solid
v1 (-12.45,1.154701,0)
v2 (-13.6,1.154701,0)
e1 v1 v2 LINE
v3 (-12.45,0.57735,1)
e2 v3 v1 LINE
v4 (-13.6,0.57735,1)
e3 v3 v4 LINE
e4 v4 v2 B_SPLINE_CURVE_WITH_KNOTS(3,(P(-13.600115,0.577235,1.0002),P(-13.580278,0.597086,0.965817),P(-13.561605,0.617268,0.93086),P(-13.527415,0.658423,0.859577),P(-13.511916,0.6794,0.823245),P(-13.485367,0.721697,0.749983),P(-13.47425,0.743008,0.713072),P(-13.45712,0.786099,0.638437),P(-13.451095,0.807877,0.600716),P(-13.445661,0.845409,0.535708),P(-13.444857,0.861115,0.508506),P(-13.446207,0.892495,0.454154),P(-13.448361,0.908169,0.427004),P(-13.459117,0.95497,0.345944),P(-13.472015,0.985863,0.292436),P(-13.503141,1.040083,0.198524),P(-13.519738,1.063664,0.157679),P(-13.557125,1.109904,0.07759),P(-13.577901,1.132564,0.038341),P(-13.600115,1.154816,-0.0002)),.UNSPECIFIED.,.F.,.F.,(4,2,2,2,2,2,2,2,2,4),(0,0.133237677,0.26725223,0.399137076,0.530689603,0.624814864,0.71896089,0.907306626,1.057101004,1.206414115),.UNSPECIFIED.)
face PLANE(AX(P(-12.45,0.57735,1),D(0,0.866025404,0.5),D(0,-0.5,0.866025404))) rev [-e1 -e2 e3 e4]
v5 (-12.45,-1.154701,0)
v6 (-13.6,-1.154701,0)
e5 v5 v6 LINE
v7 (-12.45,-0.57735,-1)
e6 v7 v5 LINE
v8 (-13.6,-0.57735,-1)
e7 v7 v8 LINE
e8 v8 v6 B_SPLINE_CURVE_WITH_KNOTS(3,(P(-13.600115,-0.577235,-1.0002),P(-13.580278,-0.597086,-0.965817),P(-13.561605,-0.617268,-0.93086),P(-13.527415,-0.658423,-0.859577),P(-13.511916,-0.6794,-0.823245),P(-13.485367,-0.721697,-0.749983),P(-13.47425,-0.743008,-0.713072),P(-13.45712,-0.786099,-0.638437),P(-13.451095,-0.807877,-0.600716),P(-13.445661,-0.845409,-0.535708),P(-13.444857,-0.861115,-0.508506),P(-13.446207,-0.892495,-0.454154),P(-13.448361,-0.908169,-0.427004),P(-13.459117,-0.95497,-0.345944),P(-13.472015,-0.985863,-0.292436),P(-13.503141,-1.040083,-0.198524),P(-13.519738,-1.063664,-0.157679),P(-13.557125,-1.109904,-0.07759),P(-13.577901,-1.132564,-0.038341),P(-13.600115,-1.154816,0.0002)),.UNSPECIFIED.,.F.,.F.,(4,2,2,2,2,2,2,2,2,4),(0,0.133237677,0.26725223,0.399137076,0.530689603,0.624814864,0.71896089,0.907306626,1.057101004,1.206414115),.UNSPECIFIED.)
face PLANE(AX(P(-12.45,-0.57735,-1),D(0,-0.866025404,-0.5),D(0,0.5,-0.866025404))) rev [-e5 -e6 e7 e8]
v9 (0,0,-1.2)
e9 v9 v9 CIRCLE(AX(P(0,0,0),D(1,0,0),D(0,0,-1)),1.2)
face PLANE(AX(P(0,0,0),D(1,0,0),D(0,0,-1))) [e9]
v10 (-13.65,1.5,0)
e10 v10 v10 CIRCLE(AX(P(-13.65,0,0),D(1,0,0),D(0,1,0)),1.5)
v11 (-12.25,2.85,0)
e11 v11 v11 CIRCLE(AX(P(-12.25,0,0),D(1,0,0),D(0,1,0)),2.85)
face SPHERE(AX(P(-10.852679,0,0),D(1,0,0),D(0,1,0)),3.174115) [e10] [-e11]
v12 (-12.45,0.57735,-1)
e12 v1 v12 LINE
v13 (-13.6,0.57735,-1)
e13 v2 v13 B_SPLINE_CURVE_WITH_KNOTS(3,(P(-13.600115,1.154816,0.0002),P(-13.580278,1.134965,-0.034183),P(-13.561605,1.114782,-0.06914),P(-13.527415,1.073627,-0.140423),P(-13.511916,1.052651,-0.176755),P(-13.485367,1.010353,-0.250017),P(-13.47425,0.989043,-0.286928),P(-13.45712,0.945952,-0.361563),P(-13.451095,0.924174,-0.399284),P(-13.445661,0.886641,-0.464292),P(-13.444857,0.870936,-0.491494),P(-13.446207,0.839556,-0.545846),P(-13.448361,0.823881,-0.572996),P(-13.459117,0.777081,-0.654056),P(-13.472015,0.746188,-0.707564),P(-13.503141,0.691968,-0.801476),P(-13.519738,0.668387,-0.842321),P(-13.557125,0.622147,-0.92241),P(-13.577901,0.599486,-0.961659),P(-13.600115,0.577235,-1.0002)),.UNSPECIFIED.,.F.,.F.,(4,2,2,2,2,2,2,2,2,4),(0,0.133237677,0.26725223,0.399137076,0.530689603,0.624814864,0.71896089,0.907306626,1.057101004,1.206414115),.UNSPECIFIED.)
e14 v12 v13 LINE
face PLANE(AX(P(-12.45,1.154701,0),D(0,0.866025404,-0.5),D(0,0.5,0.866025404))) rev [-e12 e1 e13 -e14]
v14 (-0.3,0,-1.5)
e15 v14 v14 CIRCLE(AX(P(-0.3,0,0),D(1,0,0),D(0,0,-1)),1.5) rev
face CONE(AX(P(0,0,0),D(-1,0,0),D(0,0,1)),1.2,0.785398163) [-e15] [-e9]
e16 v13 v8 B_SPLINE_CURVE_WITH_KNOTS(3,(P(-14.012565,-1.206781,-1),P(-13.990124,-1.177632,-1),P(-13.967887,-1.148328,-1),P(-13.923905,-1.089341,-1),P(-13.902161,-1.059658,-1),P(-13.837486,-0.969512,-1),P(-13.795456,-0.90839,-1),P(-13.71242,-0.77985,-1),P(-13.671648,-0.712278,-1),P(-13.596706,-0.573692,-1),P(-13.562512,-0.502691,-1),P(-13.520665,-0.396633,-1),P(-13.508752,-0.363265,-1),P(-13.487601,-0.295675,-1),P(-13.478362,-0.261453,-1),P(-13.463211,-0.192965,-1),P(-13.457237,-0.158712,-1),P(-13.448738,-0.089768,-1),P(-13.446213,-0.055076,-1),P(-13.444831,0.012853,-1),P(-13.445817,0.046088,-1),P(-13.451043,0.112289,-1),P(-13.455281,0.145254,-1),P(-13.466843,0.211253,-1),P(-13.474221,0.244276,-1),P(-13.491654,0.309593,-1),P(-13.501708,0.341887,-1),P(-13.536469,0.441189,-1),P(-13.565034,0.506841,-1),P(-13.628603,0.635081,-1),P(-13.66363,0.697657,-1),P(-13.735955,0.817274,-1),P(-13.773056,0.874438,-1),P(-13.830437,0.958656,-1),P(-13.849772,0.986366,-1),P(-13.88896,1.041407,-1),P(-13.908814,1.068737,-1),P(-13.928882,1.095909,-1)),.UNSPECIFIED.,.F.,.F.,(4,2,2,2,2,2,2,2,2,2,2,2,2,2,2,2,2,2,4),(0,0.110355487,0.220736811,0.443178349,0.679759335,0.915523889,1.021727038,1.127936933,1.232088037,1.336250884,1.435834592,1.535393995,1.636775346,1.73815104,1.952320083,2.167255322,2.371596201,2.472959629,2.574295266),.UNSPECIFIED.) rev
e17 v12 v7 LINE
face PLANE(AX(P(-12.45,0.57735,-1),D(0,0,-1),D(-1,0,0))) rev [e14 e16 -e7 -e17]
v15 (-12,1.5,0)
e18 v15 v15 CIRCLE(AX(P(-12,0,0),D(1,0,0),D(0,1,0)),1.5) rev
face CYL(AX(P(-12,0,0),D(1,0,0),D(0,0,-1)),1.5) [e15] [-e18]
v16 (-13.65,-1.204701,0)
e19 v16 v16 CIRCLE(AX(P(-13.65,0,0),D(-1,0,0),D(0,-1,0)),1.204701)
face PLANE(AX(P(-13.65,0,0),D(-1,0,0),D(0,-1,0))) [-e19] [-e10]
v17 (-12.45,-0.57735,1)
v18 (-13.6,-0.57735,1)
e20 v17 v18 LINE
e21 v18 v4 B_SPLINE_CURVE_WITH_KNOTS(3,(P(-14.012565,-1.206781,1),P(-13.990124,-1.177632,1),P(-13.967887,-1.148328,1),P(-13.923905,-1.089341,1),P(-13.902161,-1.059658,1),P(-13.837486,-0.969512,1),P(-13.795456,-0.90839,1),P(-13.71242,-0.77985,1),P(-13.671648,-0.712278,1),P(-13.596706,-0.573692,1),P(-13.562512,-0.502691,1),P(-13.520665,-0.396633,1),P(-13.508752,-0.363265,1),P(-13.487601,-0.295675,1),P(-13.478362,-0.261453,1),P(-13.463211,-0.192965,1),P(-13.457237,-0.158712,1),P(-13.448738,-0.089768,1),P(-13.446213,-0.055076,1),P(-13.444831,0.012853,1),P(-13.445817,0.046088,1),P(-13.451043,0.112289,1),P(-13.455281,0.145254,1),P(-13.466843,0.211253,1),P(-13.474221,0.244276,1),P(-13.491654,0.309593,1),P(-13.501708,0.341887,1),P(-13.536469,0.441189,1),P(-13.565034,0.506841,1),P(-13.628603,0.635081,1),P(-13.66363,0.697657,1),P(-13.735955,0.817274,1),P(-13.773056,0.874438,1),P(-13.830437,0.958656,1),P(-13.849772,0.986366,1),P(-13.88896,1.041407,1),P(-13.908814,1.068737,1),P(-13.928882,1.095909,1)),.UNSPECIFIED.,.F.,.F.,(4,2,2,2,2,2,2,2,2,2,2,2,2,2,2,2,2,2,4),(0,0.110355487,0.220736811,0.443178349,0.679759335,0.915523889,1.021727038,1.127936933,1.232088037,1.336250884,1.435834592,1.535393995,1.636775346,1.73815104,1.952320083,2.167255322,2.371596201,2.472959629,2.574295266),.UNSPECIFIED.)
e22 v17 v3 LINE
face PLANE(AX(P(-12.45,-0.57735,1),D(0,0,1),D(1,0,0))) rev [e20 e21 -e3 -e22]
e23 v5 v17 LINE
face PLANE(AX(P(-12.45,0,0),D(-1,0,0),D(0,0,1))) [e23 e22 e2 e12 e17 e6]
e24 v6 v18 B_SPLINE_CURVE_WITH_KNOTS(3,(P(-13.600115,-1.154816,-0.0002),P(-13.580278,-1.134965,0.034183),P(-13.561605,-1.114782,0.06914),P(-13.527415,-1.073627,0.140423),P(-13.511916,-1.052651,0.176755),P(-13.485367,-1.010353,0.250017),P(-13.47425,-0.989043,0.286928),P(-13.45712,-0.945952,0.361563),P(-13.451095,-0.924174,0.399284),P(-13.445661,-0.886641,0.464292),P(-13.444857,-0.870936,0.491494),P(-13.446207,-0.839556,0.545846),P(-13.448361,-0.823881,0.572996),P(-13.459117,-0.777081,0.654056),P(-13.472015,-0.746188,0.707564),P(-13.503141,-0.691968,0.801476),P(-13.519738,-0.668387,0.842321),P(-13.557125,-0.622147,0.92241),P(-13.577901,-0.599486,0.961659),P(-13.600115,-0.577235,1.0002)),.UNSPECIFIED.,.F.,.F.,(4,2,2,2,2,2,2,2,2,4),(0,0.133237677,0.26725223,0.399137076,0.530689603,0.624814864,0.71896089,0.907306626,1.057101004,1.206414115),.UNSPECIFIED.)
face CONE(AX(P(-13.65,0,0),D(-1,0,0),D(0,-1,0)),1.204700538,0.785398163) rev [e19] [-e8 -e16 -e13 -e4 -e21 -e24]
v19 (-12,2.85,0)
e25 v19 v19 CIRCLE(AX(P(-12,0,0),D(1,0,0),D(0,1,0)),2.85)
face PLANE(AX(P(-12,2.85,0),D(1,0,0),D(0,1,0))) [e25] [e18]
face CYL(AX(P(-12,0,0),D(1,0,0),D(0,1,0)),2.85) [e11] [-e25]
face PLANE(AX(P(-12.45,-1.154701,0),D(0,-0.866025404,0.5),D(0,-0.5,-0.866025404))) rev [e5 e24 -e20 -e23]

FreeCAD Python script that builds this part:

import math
import FreeCAD as App
import Part
import Sketcher
from FreeCAD import Vector
Q = App.Units.Quantity


def edges_at(feature, points):
    """Names of the edges that pass closest to the given points."""
    edges = feature.Shape.Edges
    near = lambda p: min(range(len(edges)), key=lambda i: edges[i].distToShape(Part.Vertex(*p))[0])
    return sorted({f"Edge{near(p) + 1}" for p in points})

doc = App.newDocument("Part")
body = doc.addObject("PartDesign::Body", "Body")

# Sketch on YZ plane
sketch1 = body.newObject("Sketcher::SketchObject", "Sketch")
sketch1.AttachmentSupport = (doc.getObject("YZ_Plane"), [""])
sketch1.MapMode = "FlatFace"
sketch1.addGeometry(Part.Circle(Vector(0, 0, 0), Vector(0, 0, 1), 1.5), False)
sketch1.addConstraint([
    Sketcher.Constraint("Coincident", 0, 3, -1, 1),
    Sketcher.Constraint("Diameter", 0, Q("3 mm")),
])
pad1 = body.newObject("PartDesign::Pad", "Pad")
pad1.Profile = sketch1
pad1.Length = 12
pad1.Reversed = True
doc.recompute()

chamfer = body.newObject("PartDesign::Chamfer", "Chamfer")
chamfer.Base = (pad1, edges_at(pad1, [(0, 0, 1.5)]))
chamfer.Size = 0.3

# Sketch on XY plane
sketch2 = body.newObject("Sketcher::SketchObject", "Sketch001")
sketch2.AttachmentSupport = (doc.getObject("XY_Plane"), [""])
sketch2.MapMode = "FlatFace"
sketch2.addGeometry([
    Part.LineSegment(Vector(-13.65, 1.5, 0), Vector(-13.65, 0, 0)),  # 0
    Part.LineSegment(Vector(-13.65, 0, 0), Vector(-12, 0, 0)),  # 1
    Part.LineSegment(Vector(-12, 0, 0), Vector(-12, 2.85, 0)),  # 2
    Part.LineSegment(Vector(-12, 2.85, 0), Vector(-12.25, 2.85, 0)),  # 3
    Part.ArcOfCircle(Part.Circle(Vector(-10.85, 0, 0), Vector(0, 0, 1), 3.17), math.radians(116), math.radians(152)),  # 4
], False)
sketch2.addConstraint([
    Sketcher.Constraint("Coincident", 0, 2, 1, 1),
    Sketcher.Constraint("Coincident", 1, 2, 2, 1),
    Sketcher.Constraint("Coincident", 2, 2, 3, 1),
    Sketcher.Constraint("Coincident", 3, 2, 4, 1),
    Sketcher.Constraint("Coincident", 4, 2, 0, 1),
    Sketcher.Constraint("Vertical", 0),
    Sketcher.Constraint("Horizontal", 1),
    Sketcher.Constraint("Vertical", 2),
    Sketcher.Constraint("Horizontal", 3),
    Sketcher.Constraint("PointOnObject", 4, 3, -1),
    Sketcher.Constraint("PointOnObject", 0, 2, -1),
    Sketcher.Constraint("DistanceY", 0, 2, 0, 1, Q("1.5 mm")),
    Sketcher.Constraint("DistanceX", 1, 2, -1, 1, Q("12 mm")),
    Sketcher.Constraint("DistanceX", 1, 1, 1, 2, Q("1.65 mm")),
    Sketcher.Constraint("DistanceX", 3, 2, 3, 1, Q("0.25 mm")),
    Sketcher.Constraint("DistanceY", 2, 1, 2, 2, Q("2.85 mm")),
])
revolution = body.newObject("PartDesign::Revolution", "Revolution")
revolution.Profile = sketch2
revolution.ReferenceAxis = (sketch2, ["H_Axis"])
revolution.Angle = 360

# Sketch on YZ plane
sketch3 = body.newObject("Sketcher::SketchObject", "Sketch002")
sketch3.AttachmentSupport = (doc.getObject("YZ_Plane"), [""])
sketch3.MapMode = "FlatFace"
sketch3.AttachmentOffset = App.Placement(Vector(0, 0, -13.65), App.Rotation())
sketch3.addGeometry([
    Part.LineSegment(Vector(1.2, 0, 0), Vector(0.6, -1, 0)),  # 0
    Part.LineSegment(Vector(0.6, -1, 0), Vector(-0.6, -1, 0)),  # 1
    Part.LineSegment(Vector(-0.6, -1, 0), Vector(-1.2, 0, 0)),  # 2
    Part.LineSegment(Vector(-1.2, 0, 0), Vector(-0.6, 1, 0)),  # 3
    Part.LineSegment(Vector(-0.6, 1, 0), Vector(0.6, 1, 0)),  # 4
    Part.LineSegment(Vector(0.6, 1, 0), Vector(1.2, 0, 0)),  # 5
], False)
sketch3.addConstraint([
    Sketcher.Constraint("Coincident", 0, 2, 1, 1),
    Sketcher.Constraint("Coincident", 1, 2, 2, 1),
    Sketcher.Constraint("Coincident", 2, 2, 3, 1),
    Sketcher.Constraint("Coincident", 3, 2, 4, 1),
    Sketcher.Constraint("Coincident", 4, 2, 5, 1),
    Sketcher.Constraint("Coincident", 5, 2, 0, 1),
    Sketcher.Constraint("Horizontal", 1),
    Sketcher.Constraint("Horizontal", 4),
    Sketcher.Constraint("Symmetric", 0, 2, 3, 2, -1, 1),
    Sketcher.Constraint("Symmetric", 2, 2, 5, 2, -1, 1),
    Sketcher.Constraint("PointOnObject", 2, 2, -1),
    Sketcher.Constraint("Parallel", 2, 5),
    Sketcher.Constraint("Vertical", 1, 2, 3, 2),
    Sketcher.Constraint("Angle", 0, Q("-120 deg")),
    Sketcher.Constraint("DistanceY", 0, 2, -1, 1, Q("1 mm")),
    Sketcher.Constraint("DistanceX", 1, 2, 1, 1, Q("1.154701 mm")),
])
pocket1 = body.newObject("PartDesign::Pocket", "Pocket")
pocket1.Profile = sketch3
pocket1.Length = 1.2
pocket1.Reversed = True

# Sketch on YZ plane
sketch4 = body.newObject("Sketcher::SketchObject", "Sketch003")
sketch4.AttachmentSupport = (doc.getObject("YZ_Plane"), [""])
sketch4.MapMode = "FlatFace"
sketch4.AttachmentOffset = App.Placement(Vector(0, 0, -13.65), App.Rotation())
sketch4.addGeometry(Part.Circle(Vector(0, 0, 0), Vector(0, 0, 1), 1.2), False)
sketch4.addConstraint([
    Sketcher.Constraint("Coincident", 0, 3, -1, 1),
    Sketcher.Constraint("Diameter", 0, Q("2.409401 mm")),
])
pocket2 = body.newObject("PartDesign::Pocket", "Pocket001")
pocket2.Profile = sketch4
pocket2.Length = 1
pocket2.Reversed = True
pocket2.TaperAngle = -45

doc.recompute()
